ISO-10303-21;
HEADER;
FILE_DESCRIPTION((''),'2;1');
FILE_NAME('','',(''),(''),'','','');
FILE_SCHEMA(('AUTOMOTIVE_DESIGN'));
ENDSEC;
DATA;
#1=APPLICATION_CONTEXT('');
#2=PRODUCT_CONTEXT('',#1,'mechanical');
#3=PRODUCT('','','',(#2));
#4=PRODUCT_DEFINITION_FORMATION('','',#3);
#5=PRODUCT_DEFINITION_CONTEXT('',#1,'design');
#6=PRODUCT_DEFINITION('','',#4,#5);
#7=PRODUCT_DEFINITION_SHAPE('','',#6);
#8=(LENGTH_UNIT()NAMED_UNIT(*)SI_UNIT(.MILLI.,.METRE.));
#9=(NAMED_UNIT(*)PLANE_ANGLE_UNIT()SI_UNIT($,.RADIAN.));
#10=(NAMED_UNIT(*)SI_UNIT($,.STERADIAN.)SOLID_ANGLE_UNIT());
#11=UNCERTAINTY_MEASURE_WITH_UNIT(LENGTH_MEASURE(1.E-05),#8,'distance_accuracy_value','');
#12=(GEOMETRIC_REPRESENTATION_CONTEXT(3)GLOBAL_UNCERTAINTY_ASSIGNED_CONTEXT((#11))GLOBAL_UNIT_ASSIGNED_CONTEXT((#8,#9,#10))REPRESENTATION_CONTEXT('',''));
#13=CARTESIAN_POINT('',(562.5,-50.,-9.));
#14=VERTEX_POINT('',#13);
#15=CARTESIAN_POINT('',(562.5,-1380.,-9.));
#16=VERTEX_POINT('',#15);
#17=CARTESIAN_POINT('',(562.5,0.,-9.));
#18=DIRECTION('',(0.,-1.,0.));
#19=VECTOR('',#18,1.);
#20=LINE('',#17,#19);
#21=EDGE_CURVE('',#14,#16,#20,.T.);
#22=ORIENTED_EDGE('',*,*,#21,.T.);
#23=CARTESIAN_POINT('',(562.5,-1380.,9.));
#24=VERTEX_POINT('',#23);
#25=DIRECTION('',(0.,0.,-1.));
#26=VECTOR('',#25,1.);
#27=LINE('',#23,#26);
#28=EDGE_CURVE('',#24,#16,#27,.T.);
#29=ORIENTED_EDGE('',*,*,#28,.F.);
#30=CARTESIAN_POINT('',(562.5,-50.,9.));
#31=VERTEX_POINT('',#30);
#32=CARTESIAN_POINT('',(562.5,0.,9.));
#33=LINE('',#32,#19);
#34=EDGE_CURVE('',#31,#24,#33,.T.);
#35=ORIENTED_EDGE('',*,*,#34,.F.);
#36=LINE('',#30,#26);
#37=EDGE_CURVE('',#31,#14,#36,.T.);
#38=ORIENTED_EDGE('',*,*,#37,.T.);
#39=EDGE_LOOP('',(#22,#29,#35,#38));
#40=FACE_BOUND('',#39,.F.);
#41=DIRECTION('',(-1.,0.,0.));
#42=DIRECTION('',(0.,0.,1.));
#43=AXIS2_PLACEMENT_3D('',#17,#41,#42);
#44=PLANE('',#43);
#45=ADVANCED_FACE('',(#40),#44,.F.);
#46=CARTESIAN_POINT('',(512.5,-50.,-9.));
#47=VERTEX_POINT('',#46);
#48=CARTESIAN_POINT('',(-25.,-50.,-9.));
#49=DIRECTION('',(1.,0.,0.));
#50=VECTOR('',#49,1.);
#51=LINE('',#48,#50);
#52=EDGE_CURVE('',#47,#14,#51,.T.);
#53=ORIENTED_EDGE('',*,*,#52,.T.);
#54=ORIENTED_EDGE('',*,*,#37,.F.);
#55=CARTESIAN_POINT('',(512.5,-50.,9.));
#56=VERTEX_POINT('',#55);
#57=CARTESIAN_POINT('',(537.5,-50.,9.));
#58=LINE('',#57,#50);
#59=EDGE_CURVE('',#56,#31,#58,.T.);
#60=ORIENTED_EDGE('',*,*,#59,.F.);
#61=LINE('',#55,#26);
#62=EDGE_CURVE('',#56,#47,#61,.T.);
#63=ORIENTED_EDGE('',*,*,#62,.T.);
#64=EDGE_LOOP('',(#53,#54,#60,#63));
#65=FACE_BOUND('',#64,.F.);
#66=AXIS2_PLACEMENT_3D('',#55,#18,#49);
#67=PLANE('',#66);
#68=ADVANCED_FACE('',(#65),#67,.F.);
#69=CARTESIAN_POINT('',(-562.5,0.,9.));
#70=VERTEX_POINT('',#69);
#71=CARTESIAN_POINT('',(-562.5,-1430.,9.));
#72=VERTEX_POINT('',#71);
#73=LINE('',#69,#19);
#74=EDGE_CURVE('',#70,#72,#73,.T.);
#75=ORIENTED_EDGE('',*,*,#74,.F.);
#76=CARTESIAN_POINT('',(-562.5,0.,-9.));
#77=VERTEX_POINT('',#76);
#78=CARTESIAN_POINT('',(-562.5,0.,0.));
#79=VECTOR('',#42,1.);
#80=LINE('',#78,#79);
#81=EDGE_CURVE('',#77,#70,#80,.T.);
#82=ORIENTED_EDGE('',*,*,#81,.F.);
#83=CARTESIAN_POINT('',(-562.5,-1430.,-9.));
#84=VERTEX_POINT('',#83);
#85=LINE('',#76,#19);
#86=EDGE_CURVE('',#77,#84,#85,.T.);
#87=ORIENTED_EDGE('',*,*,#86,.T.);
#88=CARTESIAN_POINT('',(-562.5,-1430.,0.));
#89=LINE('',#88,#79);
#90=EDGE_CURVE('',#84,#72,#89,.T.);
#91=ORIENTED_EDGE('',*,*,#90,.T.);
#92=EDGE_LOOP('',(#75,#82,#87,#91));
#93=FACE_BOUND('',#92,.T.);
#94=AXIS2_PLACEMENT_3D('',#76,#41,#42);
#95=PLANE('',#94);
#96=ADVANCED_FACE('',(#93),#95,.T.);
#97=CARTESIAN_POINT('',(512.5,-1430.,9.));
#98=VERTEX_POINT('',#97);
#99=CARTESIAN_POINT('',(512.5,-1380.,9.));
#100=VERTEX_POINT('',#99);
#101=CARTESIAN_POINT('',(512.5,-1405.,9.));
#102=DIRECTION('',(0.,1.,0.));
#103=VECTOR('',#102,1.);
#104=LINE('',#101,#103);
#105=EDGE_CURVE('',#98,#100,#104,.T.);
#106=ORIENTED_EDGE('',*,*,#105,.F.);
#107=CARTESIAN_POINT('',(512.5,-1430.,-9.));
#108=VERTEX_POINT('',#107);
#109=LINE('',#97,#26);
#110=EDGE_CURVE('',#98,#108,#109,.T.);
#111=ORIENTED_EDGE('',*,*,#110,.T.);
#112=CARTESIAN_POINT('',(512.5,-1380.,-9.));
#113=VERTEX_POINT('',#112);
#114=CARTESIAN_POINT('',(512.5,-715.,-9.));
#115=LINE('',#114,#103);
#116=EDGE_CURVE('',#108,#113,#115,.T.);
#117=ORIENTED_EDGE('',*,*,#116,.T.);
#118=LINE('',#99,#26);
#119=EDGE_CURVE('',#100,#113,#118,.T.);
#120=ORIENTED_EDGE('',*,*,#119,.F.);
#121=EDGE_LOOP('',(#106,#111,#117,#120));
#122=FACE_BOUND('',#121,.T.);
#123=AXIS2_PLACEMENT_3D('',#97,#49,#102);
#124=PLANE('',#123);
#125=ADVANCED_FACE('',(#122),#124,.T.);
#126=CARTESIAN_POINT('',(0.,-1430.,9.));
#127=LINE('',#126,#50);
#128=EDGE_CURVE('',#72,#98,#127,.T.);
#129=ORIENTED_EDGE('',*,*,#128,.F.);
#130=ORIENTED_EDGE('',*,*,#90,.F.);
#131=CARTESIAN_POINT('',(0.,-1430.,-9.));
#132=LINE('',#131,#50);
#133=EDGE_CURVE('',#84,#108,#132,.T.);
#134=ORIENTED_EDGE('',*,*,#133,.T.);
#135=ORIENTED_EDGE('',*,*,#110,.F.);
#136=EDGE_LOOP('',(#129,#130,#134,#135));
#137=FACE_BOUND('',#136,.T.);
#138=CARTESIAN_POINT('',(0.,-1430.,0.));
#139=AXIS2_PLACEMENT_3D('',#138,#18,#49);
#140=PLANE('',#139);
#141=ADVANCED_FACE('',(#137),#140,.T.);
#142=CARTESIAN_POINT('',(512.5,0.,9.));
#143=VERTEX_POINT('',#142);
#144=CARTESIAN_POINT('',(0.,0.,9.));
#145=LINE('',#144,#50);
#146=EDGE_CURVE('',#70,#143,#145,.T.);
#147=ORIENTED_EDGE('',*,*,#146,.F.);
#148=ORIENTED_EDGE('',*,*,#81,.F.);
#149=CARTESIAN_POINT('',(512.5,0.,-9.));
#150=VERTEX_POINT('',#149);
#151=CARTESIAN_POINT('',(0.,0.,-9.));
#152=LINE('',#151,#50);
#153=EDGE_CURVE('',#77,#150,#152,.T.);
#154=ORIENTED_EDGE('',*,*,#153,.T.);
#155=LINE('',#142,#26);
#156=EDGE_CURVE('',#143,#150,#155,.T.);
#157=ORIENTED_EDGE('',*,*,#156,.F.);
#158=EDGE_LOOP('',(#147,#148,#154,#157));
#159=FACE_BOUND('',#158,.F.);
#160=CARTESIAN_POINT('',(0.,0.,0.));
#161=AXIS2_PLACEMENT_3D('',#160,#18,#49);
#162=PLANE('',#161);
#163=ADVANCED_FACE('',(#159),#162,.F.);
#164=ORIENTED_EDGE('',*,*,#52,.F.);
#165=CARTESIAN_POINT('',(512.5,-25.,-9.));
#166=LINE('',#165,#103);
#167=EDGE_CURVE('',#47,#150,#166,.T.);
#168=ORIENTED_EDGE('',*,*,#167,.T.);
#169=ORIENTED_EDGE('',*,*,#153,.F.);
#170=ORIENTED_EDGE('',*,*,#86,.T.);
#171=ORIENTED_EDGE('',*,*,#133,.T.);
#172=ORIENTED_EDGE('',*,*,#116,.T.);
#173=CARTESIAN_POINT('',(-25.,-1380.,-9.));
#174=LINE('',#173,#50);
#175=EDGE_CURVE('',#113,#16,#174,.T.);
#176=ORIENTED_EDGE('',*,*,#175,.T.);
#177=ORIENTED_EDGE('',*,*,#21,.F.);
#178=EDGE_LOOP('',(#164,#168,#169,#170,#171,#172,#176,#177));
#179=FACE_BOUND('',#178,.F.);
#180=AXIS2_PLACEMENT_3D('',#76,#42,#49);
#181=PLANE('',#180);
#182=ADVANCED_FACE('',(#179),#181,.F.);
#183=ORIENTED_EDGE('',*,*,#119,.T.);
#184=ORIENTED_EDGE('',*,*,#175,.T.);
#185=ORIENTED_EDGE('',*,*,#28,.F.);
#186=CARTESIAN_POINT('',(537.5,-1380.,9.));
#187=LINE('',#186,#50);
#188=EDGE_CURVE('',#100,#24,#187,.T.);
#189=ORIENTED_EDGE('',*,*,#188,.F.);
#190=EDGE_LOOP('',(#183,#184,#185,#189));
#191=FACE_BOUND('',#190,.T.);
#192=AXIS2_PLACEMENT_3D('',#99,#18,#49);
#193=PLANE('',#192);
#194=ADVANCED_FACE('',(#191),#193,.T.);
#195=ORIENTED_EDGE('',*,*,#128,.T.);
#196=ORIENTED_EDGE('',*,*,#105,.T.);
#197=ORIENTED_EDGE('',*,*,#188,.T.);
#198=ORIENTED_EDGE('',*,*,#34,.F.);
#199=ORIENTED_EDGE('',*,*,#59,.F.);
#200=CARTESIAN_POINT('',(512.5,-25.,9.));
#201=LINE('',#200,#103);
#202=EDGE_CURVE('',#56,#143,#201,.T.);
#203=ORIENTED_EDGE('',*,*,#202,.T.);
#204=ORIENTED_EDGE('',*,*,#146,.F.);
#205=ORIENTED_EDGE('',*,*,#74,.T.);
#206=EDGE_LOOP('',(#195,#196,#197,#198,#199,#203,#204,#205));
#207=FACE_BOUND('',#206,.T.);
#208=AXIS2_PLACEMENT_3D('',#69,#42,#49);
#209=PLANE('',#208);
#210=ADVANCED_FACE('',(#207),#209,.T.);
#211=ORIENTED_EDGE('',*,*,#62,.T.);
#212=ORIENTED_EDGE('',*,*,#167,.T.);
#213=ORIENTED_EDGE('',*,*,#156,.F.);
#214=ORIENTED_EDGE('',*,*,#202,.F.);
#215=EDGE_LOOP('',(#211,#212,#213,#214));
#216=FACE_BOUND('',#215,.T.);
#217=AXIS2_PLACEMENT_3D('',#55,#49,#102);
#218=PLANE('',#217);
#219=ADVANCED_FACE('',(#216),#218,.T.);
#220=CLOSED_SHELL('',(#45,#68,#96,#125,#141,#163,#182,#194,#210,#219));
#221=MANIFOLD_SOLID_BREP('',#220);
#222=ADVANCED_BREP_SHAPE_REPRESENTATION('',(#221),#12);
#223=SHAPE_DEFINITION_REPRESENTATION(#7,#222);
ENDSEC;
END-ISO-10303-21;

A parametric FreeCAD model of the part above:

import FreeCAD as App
import Part
import Sketcher

V = App.Vector
Q = App.Units.Quantity

doc = App.newDocument("Part")
params = doc.addObject("Spreadsheet::Sheet", "Params")
for row, (alias, value) in enumerate([
    ("sketch1_width", "1125 mm"),
    ("sketch1_height", "18 mm"),
    ("pad1_length", "1430 mm"),
    ("sketch2_width", "50 mm"),
], start=1):
    params.set(f"A{row}", alias)
    params.set(f"B{row}", "=" + value)
    params.setAlias(f"B{row}", alias)

body = doc.addObject("PartDesign::Body", "Body")

# Sketch on XZ plane
sketch1 = doc.addObject("Sketcher::SketchObject", "Sketch")
body.addObject(sketch1)
sketch1.AttachmentSupport = (doc.XZ_Plane, [""])
sketch1.MapMode = "FlatFace"
sketch1.addGeometry([
    Part.LineSegment(V(-562, 9, 0), V(-562, -9, 0)),
    Part.LineSegment(V(-562, -9, 0), V(562, -9, 0)),
    Part.LineSegment(V(562, -9, 0), V(562, 9, 0)),
    Part.LineSegment(V(562, 9, 0), V(-562, 9, 0)),
], False)
sketch1.addConstraint([
    Sketcher.Constraint("Coincident", 0, 2, 1, 1),
    Sketcher.Constraint("Coincident", 1, 2, 2, 1),
    Sketcher.Constraint("Coincident", 2, 2, 3, 1),
    Sketcher.Constraint("Coincident", 3, 2, 0, 1),
    Sketcher.Constraint("Vertical", 0),
    Sketcher.Constraint("Horizontal", 1),
    Sketcher.Constraint("Vertical", 2),
    Sketcher.Constraint("Horizontal", 3),
    Sketcher.Constraint("Symmetric", 0, 2, 2, 2, -1, 1),
    Sketcher.Constraint("DistanceX", 1, 1, 1, 2, Q("1125 mm")),
    Sketcher.Constraint("DistanceY", 0, 2, 0, 1, Q("18 mm")),
])
sketch1.setExpression("Constraints[9]", "Params.sketch1_width")
sketch1.setExpression("Constraints[10]", "Params.sketch1_height")
pad1 = doc.addObject("PartDesign::Pad", "Pad")
body.addObject(pad1)
pad1.Profile = sketch1
pad1.setExpression("Length", "Params.pad1_length")

# Sketch on XY plane
sketch2 = doc.addObject("Sketcher::SketchObject", "Sketch001")
body.addObject(sketch2)
sketch2.AttachmentSupport = (doc.XY_Plane, [""])
sketch2.MapMode = "FlatFace"
sketch2.AttachmentOffset = App.Placement(V(0, 0, 9), App.Rotation())
sketch2.addGeometry([
    Part.LineSegment(V(512, -1380, 0), V(512, -1430, 0)),  # 0
    Part.LineSegment(V(512, -1430, 0), V(562, -1430, 0)),  # 1
    Part.LineSegment(V(562, -1430, 0), V(562, -1380, 0)),  # 2
    Part.LineSegment(V(562, -1380, 0), V(512, -1380, 0)),  # 3
    Part.LineSegment(V(512, 0, 0), V(512, -50, 0)),  # 4
    Part.LineSegment(V(512, -50, 0), V(562, -50, 0)),  # 5
    Part.LineSegment(V(562, -50, 0), V(562, 0, 0)),  # 6
    Part.LineSegment(V(562, 0, 0), V(512, 0, 0)),  # 7
], False)
sketch2.addConstraint([
    Sketcher.Constraint("Coincident", 0, 2, 1, 1),
    Sketcher.Constraint("Coincident", 1, 2, 2, 1),
    Sketcher.Constraint("Coincident", 2, 2, 3, 1),
    Sketcher.Constraint("Coincident", 3, 2, 0, 1),
    Sketcher.Constraint("Coincident", 4, 2, 5, 1),
    Sketcher.Constraint("Coincident", 5, 2, 6, 1),
    Sketcher.Constraint("Coincident", 6, 2, 7, 1),
    Sketcher.Constraint("Coincident", 7, 2, 4, 1),
    Sketcher.Constraint("Vertical", 0),
    Sketcher.Constraint("Horizontal", 1),
    Sketcher.Constraint("Vertical", 2),
    Sketcher.Constraint("Horizontal", 3),
    Sketcher.Constraint("Vertical", 4),
    Sketcher.Constraint("Horizontal", 5),
    Sketcher.Constraint("Vertical", 6),
    Sketcher.Constraint("Horizontal", 7),
    Sketcher.Constraint("PointOnObject", 6, 2, -1),
    Sketcher.Constraint("Vertical", 3, 2, 4, 2),
    Sketcher.Constraint("Vertical", 2, 2, 5, 2),
    Sketcher.Constraint("Equal", 7, 0),
    Sketcher.Constraint("Equal", 2, 4),
    Sketcher.Constraint("DistanceX", 1, 1, 1, 2, Q("50 mm")),
    Sketcher.Constraint("DistanceY", 0, 2, -1, 1, Q("1430 mm")),
    Sketcher.Constraint("DistanceX", -1, 1, 0, 2, Q("512.5 mm")),
])
sketch2.setExpression("Constraints[21]", "Params.sketch2_width")
pocket1 = doc.addObject("PartDesign::Pocket", "Pocket")
body.addObject(pocket1)
pocket1.Profile = sketch2
pocket1.Type = "ThroughAll"

doc.recompute()
